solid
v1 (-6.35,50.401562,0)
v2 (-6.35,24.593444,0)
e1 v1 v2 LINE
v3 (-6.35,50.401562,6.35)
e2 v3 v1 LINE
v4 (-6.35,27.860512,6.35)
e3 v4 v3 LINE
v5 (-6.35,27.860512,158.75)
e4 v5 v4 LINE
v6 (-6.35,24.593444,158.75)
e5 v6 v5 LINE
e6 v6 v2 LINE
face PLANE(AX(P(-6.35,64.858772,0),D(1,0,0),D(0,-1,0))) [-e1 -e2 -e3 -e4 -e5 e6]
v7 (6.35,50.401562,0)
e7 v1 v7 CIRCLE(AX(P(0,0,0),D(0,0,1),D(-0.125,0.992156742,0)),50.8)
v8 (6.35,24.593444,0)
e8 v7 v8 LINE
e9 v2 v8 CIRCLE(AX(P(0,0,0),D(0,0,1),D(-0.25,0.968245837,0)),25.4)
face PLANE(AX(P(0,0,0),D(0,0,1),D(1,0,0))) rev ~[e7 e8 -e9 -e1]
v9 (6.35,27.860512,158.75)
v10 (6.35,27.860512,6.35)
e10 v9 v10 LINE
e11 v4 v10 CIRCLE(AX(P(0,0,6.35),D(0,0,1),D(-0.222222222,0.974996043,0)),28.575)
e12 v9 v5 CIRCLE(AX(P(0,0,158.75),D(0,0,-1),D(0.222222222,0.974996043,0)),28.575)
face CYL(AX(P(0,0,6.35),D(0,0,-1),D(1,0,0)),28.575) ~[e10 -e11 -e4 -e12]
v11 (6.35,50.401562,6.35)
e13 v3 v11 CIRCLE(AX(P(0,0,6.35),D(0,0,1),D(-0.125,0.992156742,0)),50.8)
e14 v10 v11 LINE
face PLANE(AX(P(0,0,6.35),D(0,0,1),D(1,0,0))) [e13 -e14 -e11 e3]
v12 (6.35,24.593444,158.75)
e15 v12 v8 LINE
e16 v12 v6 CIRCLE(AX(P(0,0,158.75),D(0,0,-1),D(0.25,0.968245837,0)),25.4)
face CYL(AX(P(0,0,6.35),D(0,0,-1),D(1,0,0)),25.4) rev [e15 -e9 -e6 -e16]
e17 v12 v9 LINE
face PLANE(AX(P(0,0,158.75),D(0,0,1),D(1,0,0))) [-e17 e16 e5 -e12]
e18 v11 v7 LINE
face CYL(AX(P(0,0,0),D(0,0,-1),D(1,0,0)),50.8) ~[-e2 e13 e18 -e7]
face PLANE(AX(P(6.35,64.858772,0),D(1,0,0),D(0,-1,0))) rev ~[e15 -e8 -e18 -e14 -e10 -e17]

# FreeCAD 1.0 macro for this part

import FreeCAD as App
import Part
import Sketcher

V = App.Vector
Q = App.Units.Quantity

doc = App.newDocument("Part")
body = doc.addObject("PartDesign::Body", "Body")

# Sketch on XY plane
sketch1 = body.newObject("Sketcher::SketchObject", "Sketch")
sketch1.AttachmentSupport = (doc.getObject("XY_Plane"), [""])
sketch1.MapMode = "FlatFace"
sketch1.addGeometry([
    Part.Circle(V(0, 0, 0), V(0, 0, 1), 51),
    Part.Circle(V(0, 0, 0), V(0, 0, 1), 25),
], False)
sketch1.addConstraint([
    Sketcher.Constraint("Coincident", 0, 3, -1, 1),
    Sketcher.Constraint("Coincident", 1, 3, -1, 1),
    Sketcher.Constraint("Diameter", 0, Q("4 in")),
    Sketcher.Constraint("Diameter", 1, Q("2 in")),
])
pad1 = body.newObject("PartDesign::Pad", "Pad")
pad1.Profile = sketch1
pad1.Length = Q("0.25 in")

# Sketch on XY plane
sketch2 = body.newObject("Sketcher::SketchObject", "Sketch001")
sketch2.AttachmentSupport = (doc.getObject("XY_Plane"), [""])
sketch2.MapMode = "FlatFace"
sketch2.AttachmentOffset = App.Placement(V(0, 0, 0.25 * 25.4), App.Rotation())
sketch2.addGeometry([
    Part.Circle(V(0, 0, 0), V(0, 0, 1), 29),
    Part.Circle(V(0, 0, 0), V(0, 0, 1), 25),
], False)
sketch2.addConstraint([
    Sketcher.Constraint("Coincident", 0, 3, -1, 1),
    Sketcher.Constraint("Coincident", 1, 3, -1, 1),
    Sketcher.Constraint("Diameter", 1, Q("2 in")),
    Sketcher.Constraint("Diameter", 0, Q("2.25 in")),
])
pad2 = body.newObject("PartDesign::Pad", "Pad001")
pad2.Profile = sketch2
pad2.Length = Q("6 in")

# Sketch on XY plane
sketch3 = body.newObject("Sketcher::SketchObject", "Sketch002")
sketch3.AttachmentSupport = (doc.getObject("XY_Plane"), [""])
sketch3.MapMode = "FlatFace"
sketch3.addGeometry([
    Part.LineSegment(V(-6, 13, 0), V(-6, 65, 0)),
    Part.LineSegment(V(-6, 65, 0), V(6, 65, 0)),
    Part.LineSegment(V(6, 65, 0), V(6, 13, 0)),
    Part.LineSegment(V(6, 13, 0), V(-6, 13, 0)),
], False)
sketch3.addConstraint([
    Sketcher.Constraint("Coincident", 0, 2, 1, 1),
    Sketcher.Constraint("Coincident", 1, 2, 2, 1),
    Sketcher.Constraint("Coincident", 2, 2, 3, 1),
    Sketcher.Constraint("Coincident", 3, 2, 0, 1),
    Sketcher.Constraint("Vertical", 0),
    Sketcher.Constraint("Horizontal", 1),
    Sketcher.Constraint("Vertical", 2),
    Sketcher.Constraint("Horizontal", 3),
    Sketcher.Constraint("DistanceX", 1, 1, 1, 2, Q("0.5 in")),
    Sketcher.Constraint("DistanceX", 0, 2, -1, 1, Q("0.25 in")),
    Sketcher.Constraint("DistanceY", 0, 1, 0, 2, Q("51.4328 mm")),
    Sketcher.Constraint("DistanceY", -1, 1, 0, 2, Q("64.858772 mm")),
])
pocket1 = body.newObject("PartDesign::Pocket", "Pocket")
pocket1.Profile = sketch3
pocket1.Type = "ThroughAll"
pocket1.Reversed = True

doc.recompute()
